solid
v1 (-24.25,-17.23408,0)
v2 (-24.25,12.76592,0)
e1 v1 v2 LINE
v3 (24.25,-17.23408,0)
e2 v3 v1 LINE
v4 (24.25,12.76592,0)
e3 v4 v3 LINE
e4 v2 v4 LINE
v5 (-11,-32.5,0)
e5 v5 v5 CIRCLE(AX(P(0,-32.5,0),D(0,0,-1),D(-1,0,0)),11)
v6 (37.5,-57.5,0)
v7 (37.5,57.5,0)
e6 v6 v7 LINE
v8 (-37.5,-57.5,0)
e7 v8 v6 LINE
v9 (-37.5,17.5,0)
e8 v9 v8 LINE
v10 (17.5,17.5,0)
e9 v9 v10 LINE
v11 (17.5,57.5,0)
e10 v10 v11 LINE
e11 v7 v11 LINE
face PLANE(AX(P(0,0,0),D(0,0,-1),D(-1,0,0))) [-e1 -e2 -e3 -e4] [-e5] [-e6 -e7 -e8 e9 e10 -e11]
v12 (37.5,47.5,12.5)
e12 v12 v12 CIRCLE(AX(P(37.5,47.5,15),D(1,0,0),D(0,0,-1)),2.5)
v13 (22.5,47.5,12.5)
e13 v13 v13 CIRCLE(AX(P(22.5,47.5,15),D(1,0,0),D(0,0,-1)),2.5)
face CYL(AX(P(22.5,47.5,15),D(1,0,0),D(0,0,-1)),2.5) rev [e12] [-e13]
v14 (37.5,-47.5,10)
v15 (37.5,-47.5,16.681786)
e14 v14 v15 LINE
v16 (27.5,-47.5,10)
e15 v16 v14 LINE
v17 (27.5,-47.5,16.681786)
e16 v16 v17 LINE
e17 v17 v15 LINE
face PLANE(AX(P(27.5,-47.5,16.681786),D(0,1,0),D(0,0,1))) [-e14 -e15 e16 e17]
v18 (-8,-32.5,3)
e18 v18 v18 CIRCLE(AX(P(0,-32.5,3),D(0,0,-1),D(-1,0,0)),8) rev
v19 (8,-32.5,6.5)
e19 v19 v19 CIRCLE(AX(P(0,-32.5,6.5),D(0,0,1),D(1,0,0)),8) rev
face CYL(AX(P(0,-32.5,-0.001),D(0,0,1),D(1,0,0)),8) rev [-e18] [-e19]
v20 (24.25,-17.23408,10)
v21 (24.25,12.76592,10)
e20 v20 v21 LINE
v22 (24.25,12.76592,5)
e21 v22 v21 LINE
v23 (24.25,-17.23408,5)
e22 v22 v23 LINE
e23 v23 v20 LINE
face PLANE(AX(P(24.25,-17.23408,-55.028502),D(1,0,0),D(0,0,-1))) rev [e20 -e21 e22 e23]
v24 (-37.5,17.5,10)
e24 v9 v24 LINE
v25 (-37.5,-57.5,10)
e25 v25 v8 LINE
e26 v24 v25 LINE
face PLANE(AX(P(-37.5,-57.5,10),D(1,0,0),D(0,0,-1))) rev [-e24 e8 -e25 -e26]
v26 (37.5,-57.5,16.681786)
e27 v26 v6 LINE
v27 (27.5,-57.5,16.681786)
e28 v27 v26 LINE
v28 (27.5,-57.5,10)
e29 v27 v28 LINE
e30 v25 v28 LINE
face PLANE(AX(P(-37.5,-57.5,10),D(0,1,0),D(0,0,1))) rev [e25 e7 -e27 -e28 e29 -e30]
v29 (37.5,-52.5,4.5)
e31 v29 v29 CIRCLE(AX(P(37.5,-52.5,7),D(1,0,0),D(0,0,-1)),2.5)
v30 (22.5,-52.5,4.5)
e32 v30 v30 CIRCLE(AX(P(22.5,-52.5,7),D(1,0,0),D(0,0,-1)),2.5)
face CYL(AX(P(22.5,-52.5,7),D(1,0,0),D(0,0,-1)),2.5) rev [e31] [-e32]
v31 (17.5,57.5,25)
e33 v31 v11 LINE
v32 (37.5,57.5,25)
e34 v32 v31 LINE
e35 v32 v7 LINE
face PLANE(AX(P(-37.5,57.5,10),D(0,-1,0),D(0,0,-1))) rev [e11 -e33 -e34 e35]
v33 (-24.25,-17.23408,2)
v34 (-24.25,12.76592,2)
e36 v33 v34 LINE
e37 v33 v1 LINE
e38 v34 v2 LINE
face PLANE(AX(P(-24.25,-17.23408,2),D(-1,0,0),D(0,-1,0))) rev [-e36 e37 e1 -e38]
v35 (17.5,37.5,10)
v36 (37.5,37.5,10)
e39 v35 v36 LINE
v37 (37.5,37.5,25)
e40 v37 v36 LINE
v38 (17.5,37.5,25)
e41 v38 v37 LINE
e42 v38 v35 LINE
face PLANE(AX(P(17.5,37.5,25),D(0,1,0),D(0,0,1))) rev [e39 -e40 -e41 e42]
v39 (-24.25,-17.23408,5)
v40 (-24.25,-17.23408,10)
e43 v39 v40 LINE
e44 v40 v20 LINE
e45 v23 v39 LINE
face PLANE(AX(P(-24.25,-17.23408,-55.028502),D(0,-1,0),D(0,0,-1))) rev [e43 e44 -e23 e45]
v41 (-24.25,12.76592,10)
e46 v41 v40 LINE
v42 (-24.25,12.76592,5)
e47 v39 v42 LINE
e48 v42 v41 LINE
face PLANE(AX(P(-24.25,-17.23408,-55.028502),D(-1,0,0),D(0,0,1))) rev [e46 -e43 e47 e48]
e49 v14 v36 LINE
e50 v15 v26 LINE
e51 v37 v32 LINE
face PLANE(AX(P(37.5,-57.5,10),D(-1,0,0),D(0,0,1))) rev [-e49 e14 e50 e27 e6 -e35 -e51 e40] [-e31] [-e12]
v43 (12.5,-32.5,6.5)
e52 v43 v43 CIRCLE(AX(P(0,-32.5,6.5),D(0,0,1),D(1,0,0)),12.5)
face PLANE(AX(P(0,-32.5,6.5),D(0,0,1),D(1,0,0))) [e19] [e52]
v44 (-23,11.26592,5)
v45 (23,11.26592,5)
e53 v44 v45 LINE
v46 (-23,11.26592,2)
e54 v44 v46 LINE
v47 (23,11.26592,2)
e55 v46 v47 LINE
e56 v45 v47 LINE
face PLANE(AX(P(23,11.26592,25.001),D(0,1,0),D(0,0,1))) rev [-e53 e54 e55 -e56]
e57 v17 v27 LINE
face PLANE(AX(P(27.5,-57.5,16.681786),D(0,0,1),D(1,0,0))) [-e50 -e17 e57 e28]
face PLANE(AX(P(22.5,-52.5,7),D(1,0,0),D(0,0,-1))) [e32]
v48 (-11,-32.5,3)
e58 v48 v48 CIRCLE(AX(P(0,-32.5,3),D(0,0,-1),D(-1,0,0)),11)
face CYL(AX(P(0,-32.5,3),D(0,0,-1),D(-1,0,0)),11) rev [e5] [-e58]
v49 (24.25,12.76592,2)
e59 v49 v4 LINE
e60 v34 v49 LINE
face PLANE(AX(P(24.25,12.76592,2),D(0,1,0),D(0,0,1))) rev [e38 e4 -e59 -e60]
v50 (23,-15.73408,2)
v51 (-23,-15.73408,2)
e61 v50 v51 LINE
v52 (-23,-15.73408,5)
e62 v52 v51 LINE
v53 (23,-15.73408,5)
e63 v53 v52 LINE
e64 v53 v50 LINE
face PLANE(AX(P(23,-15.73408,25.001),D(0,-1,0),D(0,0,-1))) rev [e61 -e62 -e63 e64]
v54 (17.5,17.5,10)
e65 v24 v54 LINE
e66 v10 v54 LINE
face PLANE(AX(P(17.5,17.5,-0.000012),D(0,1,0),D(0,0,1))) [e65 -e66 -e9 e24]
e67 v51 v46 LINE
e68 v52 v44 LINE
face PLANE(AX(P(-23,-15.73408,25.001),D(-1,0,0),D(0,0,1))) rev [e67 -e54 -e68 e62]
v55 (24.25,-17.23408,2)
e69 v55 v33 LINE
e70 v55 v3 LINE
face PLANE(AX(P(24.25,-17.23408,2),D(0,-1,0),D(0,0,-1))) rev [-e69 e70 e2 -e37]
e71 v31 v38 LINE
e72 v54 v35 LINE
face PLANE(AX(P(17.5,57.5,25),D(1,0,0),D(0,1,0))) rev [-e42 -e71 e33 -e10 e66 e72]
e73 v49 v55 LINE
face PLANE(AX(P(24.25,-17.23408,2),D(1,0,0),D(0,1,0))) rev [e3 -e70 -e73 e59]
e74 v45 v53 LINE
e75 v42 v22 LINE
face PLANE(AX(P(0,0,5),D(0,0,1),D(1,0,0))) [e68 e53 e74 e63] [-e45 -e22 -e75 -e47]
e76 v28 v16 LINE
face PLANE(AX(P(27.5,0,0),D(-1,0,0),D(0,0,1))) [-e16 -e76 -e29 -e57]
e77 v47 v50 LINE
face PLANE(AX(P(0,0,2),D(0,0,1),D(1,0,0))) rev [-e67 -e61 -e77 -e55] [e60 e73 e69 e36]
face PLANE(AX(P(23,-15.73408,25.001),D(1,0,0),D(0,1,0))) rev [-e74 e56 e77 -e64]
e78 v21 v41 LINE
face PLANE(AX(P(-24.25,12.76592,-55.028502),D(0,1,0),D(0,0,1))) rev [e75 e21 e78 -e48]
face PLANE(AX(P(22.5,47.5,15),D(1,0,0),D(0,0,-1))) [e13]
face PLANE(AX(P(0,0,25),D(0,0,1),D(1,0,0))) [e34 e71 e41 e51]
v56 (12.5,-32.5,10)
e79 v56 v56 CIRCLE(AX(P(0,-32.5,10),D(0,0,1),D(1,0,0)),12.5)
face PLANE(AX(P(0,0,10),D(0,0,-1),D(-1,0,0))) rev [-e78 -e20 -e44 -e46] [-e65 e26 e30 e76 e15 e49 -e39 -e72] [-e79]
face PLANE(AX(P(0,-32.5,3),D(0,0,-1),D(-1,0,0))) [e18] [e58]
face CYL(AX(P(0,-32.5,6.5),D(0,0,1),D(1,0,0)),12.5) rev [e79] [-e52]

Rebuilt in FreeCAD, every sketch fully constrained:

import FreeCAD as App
import Part
import Sketcher

V = App.Vector

doc = App.newDocument("Part")
body = doc.addObject("PartDesign::Body", "Body")

# Sketch on XY plane
sketch1 = body.newObject("Sketcher::SketchObject", "Sketch")
sketch1.AttachmentSupport = (doc.getObject("XY_Plane"), [""])
sketch1.MapMode = "FlatFace"
sketch1.addGeometry(Part.LineSegment(V(-37.5, 57.5, 0), V(-37.5, -57.5, 0)), False)
sketch1.addGeometry(Part.LineSegment(V(-37.5, -57.5, 0), V(37.5, -57.5, 0)), False)
sketch1.addGeometry(Part.LineSegment(V(37.5, -57.5, 0), V(37.5, 57.5, 0)), False)
sketch1.addGeometry(Part.LineSegment(V(37.5, 57.5, 0), V(-37.5, 57.5, 0)), False)
sketch1.addConstraint(Sketcher.Constraint("Coincident", 0, 2, 1, 1))
sketch1.addConstraint(Sketcher.Constraint("Coincident", 1, 2, 2, 1))
sketch1.addConstraint(Sketcher.Constraint("Coincident", 2, 2, 3, 1))
sketch1.addConstraint(Sketcher.Constraint("Coincident", 3, 2, 0, 1))
sketch1.addConstraint(Sketcher.Constraint("Vertical", 0))
sketch1.addConstraint(Sketcher.Constraint("Horizontal", 1))
sketch1.addConstraint(Sketcher.Constraint("Vertical", 2))
sketch1.addConstraint(Sketcher.Constraint("Horizontal", 3))
sketch1.addConstraint(Sketcher.Constraint("Symmetric", 0, 2, 2, 2, -1, 1))
sketch1.addConstraint(Sketcher.Constraint("DistanceX", 1, 1, 1, 2, 75.0))
sketch1.addConstraint(Sketcher.Constraint("DistanceY", 0, 2, 0, 1, 115.0))
pad1 = body.newObject("PartDesign::Pad", "Pad")
pad1.Profile = sketch1
pad1.Length = 10

# Sketch on XY plane
sketch2 = body.newObject("Sketcher::SketchObject", "Sketch001")
sketch2.AttachmentSupport = (doc.getObject("XY_Plane"), [""])
sketch2.MapMode = "FlatFace"
sketch2.AttachmentOffset = App.Placement(V(0, 0, 10), App.Rotation())
sketch2.addGeometry(Part.Circle(V(0, -32.5, 0), V(0, 0, 1), 8), False)
sketch2.addConstraint(Sketcher.Constraint("PointOnObject", 0, 3, -2))
sketch2.addConstraint(Sketcher.Constraint("Diameter", 0, 16.0))
sketch2.addConstraint(Sketcher.Constraint("DistanceY", 0, 3, -1, 1, 32.5))
pocket1 = body.newObject("PartDesign::Pocket", "Pocket")
pocket1.Profile = sketch2
pocket1.Type = "UpToFirst"

# Sketch on XY plane
sketch3 = body.newObject("Sketcher::SketchObject", "Sketch002")
sketch3.AttachmentSupport = (doc.getObject("XY_Plane"), [""])
sketch3.MapMode = "FlatFace"
sketch3.AttachmentOffset = App.Placement(V(0, 0, 10), App.Rotation())
sketch3.addGeometry(Part.Circle(V(0, -32.5, 0), V(0, 0, 1), 12.5), False)
sketch3.addConstraint(Sketcher.Constraint("PointOnObject", 0, 3, -2))
sketch3.addConstraint(Sketcher.Constraint("Diameter", 0, 25.0))
sketch3.addConstraint(Sketcher.Constraint("DistanceY", 0, 3, -1, 1, 32.5))
pocket2 = body.newObject("PartDesign::Pocket", "Pocket001")
pocket2.Profile = sketch3
pocket2.Length = 3.5

# Sketch on XY plane
sketch4 = body.newObject("Sketcher::SketchObject", "Sketch003")
sketch4.AttachmentSupport = (doc.getObject("XY_Plane"), [""])
sketch4.MapMode = "FlatFace"
sketch4.addGeometry(Part.Circle(V(0, -32.5, 0), V(0, 0, 1), 11), False)
sketch4.addConstraint(Sketcher.Constraint("PointOnObject", 0, 3, -2))
sketch4.addConstraint(Sketcher.Constraint("Diameter", 0, 22.0))
sketch4.addConstraint(Sketcher.Constraint("DistanceY", 0, 3, -1, 1, 32.5))
pocket3 = body.newObject("PartDesign::Pocket", "Pocket002")
pocket3.Profile = sketch4
pocket3.Length = 3
pocket3.Reversed = True

# Sketch on XY plane
sketch5 = body.newObject("Sketcher::SketchObject", "Sketch004")
sketch5.AttachmentSupport = (doc.getObject("XY_Plane"), [""])
sketch5.MapMode = "FlatFace"
sketch5.AttachmentOffset = App.Placement(V(0, 0, 10), App.Rotation())
sketch5.addGeometry(Part.LineSegment(V(17.5, 57.5, 0), V(17.5, 37.5, 0)), False)
sketch5.addGeometry(Part.LineSegment(V(17.5, 37.5, 0), V(37.5, 37.5, 0)), False)
sketch5.addGeometry(Part.LineSegment(V(37.5, 37.5, 0), V(37.5, 57.5, 0)), False)
sketch5.addGeometry(Part.LineSegment(V(37.5, 57.5, 0), V(17.5, 57.5, 0)), False)
sketch5.addConstraint(Sketcher.Constraint("Coincident", 0, 2, 1, 1))
sketch5.addConstraint(Sketcher.Constraint("Coincident", 1, 2, 2, 1))
sketch5.addConstraint(Sketcher.Constraint("Coincident", 2, 2, 3, 1))
sketch5.addConstraint(Sketcher.Constraint("Coincident", 3, 2, 0, 1))
sketch5.addConstraint(Sketcher.Constraint("Vertical", 0))
sketch5.addConstraint(Sketcher.Constraint("Horizontal", 1))
sketch5.addConstraint(Sketcher.Constraint("Vertical", 2))
sketch5.addConstraint(Sketcher.Constraint("Horizontal", 3))
sketch5.addConstraint(Sketcher.Constraint("Equal", 3, 0))
sketch5.addConstraint(Sketcher.Constraint("DistanceX", 1, 1, 1, 2, 20.0))
sketch5.addConstraint(Sketcher.Constraint("DistanceX", -1, 1, 0, 2, 17.5))
sketch5.addConstraint(Sketcher.Constraint("DistanceY", -1, 1, 0, 2, 37.5))
pad2 = body.newObject("PartDesign::Pad", "Pad001")
pad2.Profile = sketch5
pad2.Length = 15

# Sketch on YZ plane
sketch6 = body.newObject("Sketcher::SketchObject", "Sketch005")
sketch6.AttachmentSupport = (doc.getObject("YZ_Plane"), [""])
sketch6.MapMode = "FlatFace"
sketch6.AttachmentOffset = App.Placement(V(0, 0, 37.5), App.Rotation())
sketch6.addGeometry(Part.LineSegment(V(-47.5, 16.681786, 0), V(-57.5, 16.681786, 0)), False)
sketch6.addGeometry(Part.LineSegment(V(-57.5, 16.681786, 0), V(-57.5, 10, 0)), False)
sketch6.addGeometry(Part.LineSegment(V(-57.5, 10, 0), V(-47.5, 10, 0)), False)
sketch6.addGeometry(Part.LineSegment(V(-47.5, 10, 0), V(-47.5, 16.681786, 0)), False)
sketch6.addConstraint(Sketcher.Constraint("Coincident", 0, 2, 1, 1))
sketch6.addConstraint(Sketcher.Constraint("Coincident", 1, 2, 2, 1))
sketch6.addConstraint(Sketcher.Constraint("Coincident", 2, 2, 3, 1))
sketch6.addConstraint(Sketcher.Constraint("Coincident", 3, 2, 0, 1))
sketch6.addConstraint(Sketcher.Constraint("Horizontal", 0))
sketch6.addConstraint(Sketcher.Constraint("Vertical", 1))
sketch6.addConstraint(Sketcher.Constraint("Horizontal", 2))
sketch6.addConstraint(Sketcher.Constraint("Vertical", 3))
sketch6.addConstraint(Sketcher.Constraint("DistanceX", 0, 2, 0, 1, 10.0))
sketch6.addConstraint(Sketcher.Constraint("DistanceY", -1, 1, 1, 2, 10.0))
sketch6.addConstraint(Sketcher.Constraint("DistanceX", 0, 2, -1, 1, 57.5))
sketch6.addConstraint(Sketcher.Constraint("DistanceY", 1, 2, 1, 1, 6.681786))
pad3 = body.newObject("PartDesign::Pad", "Pad002")
pad3.Profile = sketch6
pad3.Length = 10
pad3.Reversed = True

# Sketch on XY plane
sketch7 = body.newObject("Sketcher::SketchObject", "Sketch006")
sketch7.AttachmentSupport = (doc.getObject("XY_Plane"), [""])
sketch7.MapMode = "FlatFace"
sketch7.addGeometry(Part.LineSegment(V(17.5, 57.5, 0), V(17.5, 17.5, 0)), False)
sketch7.addGeometry(Part.LineSegment(V(17.5, 17.5, 0), V(-37.5, 17.5, 0)), False)
sketch7.addGeometry(Part.LineSegment(V(-37.5, 17.5, 0), V(-37.5, 57.5, 0)), False)
sketch7.addGeometry(Part.LineSegment(V(-37.5, 57.5, 0), V(17.5, 57.5, 0)), False)
sketch7.addConstraint(Sketcher.Constraint("Coincident", 0, 2, 1, 1))
sketch7.addConstraint(Sketcher.Constraint("Coincident", 1, 2, 2, 1))
sketch7.addConstraint(Sketcher.Constraint("Coincident", 2, 2, 3, 1))
sketch7.addConstraint(Sketcher.Constraint("Coincident", 3, 2, 0, 1))
sketch7.addConstraint(Sketcher.Constraint("Vertical", 0))
sketch7.addConstraint(Sketcher.Constraint("Horizontal", 1))
sketch7.addConstraint(Sketcher.Constraint("Vertical", 2))
sketch7.addConstraint(Sketcher.Constraint("Horizontal", 3))
sketch7.addConstraint(Sketcher.Constraint("DistanceX", 1, 2, 1, 1, 55.0))
sketch7.addConstraint(Sketcher.Constraint("DistanceY", 0, 2, 0, 1, 40.0))
sketch7.addConstraint(Sketcher.Constraint("DistanceX", -1, 1, 0, 2, 17.5))
sketch7.addConstraint(Sketcher.Constraint("DistanceY", -1, 1, 0, 2, 17.5))
pocket4 = body.newObject("PartDesign::Pocket", "Pocket003")
pocket4.Profile = sketch7
pocket4.Type = "UpToFirst"
pocket4.Reversed = True

# Sketch on XY plane
sketch8 = body.newObject("Sketcher::SketchObject", "Sketch007")
sketch8.AttachmentSupport = (doc.getObject("XY_Plane"), [""])
sketch8.MapMode = "FlatFace"
sketch8.addGeometry(Part.LineSegment(V(17.5, 57.5, 0), V(17.5, 17.5, 0)), False)
sketch8.addGeometry(Part.LineSegment(V(17.5, 17.5, 0), V(-37.5, 17.5, 0)), False)
sketch8.addGeometry(Part.LineSegment(V(-37.5, 17.5, 0), V(-37.5, 57.5, 0)), False)
sketch8.addGeometry(Part.LineSegment(V(-37.5, 57.5, 0), V(17.5, 57.5, 0)), False)
sketch8.addConstraint(Sketcher.Constraint("Coincident", 0, 2, 1, 1))
sketch8.addConstraint(Sketcher.Constraint("Coincident", 1, 2, 2, 1))
sketch8.addConstraint(Sketcher.Constraint("Coincident", 2, 2, 3, 1))
sketch8.addConstraint(Sketcher.Constraint("Coincident", 3, 2, 0, 1))
sketch8.addConstraint(Sketcher.Constraint("Vertical", 0))
sketch8.addConstraint(Sketcher.Constraint("Horizontal", 1))
sketch8.addConstraint(Sketcher.Constraint("Vertical", 2))
sketch8.addConstraint(Sketcher.Constraint("Horizontal", 3))
sketch8.addConstraint(Sketcher.Constraint("DistanceX", 1, 2, 1, 1, 55.0))
sketch8.addConstraint(Sketcher.Constraint("DistanceY", 0, 2, 0, 1, 40.0))
sketch8.addConstraint(Sketcher.Constraint("DistanceX", -1, 1, 0, 2, 17.5))
sketch8.addConstraint(Sketcher.Constraint("DistanceY", -1, 1, 0, 2, 17.5))
pocket5 = body.newObject("PartDesign::Pocket", "Pocket004")
pocket5.Profile = sketch8
pocket5.Length = 74.058196

# Sketch on XY plane
sketch9 = body.newObject("Sketcher::SketchObject", "Sketch008")
sketch9.AttachmentSupport = (doc.getObject("XY_Plane"), [""])
sketch9.MapMode = "FlatFace"
sketch9.addGeometry(Part.LineSegment(V(23, 11.26592, 0), V(23, -15.73408, 0)), False)
sketch9.addGeometry(Part.LineSegment(V(23, -15.73408, 0), V(-23, -15.73408, 0)), False)
sketch9.addGeometry(Part.LineSegment(V(-23, -15.73408, 0), V(-23, 11.26592, 0)), False)
sketch9.addGeometry(Part.LineSegment(V(-23, 11.26592, 0), V(23, 11.26592, 0)), False)
sketch9.addConstraint(Sketcher.Constraint("Coincident", 0, 2, 1, 1))
sketch9.addConstraint(Sketcher.Constraint("Coincident", 1, 2, 2, 1))
sketch9.addConstraint(Sketcher.Constraint("Coincident", 2, 2, 3, 1))
sketch9.addConstraint(Sketcher.Constraint("Coincident", 3, 2, 0, 1))
sketch9.addConstraint(Sketcher.Constraint("Vertical", 0))
sketch9.addConstraint(Sketcher.Constraint("Horizontal", 1))
sketch9.addConstraint(Sketcher.Constraint("Vertical", 2))
sketch9.addConstraint(Sketcher.Constraint("Horizontal", 3))
sketch9.addConstraint(Sketcher.Constraint("DistanceX", 1, 2, 1, 1, 46.0))
sketch9.addConstraint(Sketcher.Constraint("DistanceY", 0, 2, 0, 1, 27.0))
sketch9.addConstraint(Sketcher.Constraint("DistanceX", -1, 1, 0, 2, 23.0))
sketch9.addConstraint(Sketcher.Constraint("DistanceY", 0, 2, -1, 1, 15.73408))
pocket6 = body.newObject("PartDesign::Pocket", "Pocket005")
pocket6.Profile = sketch9
pocket6.Type = "UpToFirst"
pocket6.Reversed = True

# Sketch on XY plane
sketch10 = body.newObject("Sketcher::SketchObject", "Sketch009")
sketch10.AttachmentSupport = (doc.getObject("XY_Plane"), [""])
sketch10.MapMode = "FlatFace"
sketch10.addGeometry(Part.LineSegment(V(24.25, 12.76592, 0), V(24.25, -17.23408, 0)), False)
sketch10.addGeometry(Part.LineSegment(V(24.25, -17.23408, 0), V(-24.25, -17.23408, 0)), False)
sketch10.addGeometry(Part.LineSegment(V(-24.25, -17.23408, 0), V(-24.25, 12.76592, 0)), False)
sketch10.addGeometry(Part.LineSegment(V(-24.25, 12.76592, 0), V(24.25, 12.76592, 0)), False)
sketch10.addConstraint(Sketcher.Constraint("Coincident", 0, 2, 1, 1))
sketch10.addConstraint(Sketcher.Constraint("Coincident", 1, 2, 2, 1))
sketch10.addConstraint(Sketcher.Constraint("Coincident", 2, 2, 3, 1))
sketch10.addConstraint(Sketcher.Constraint("Coincident", 3, 2, 0, 1))
sketch10.addConstraint(Sketcher.Constraint("Vertical", 0))
sketch10.addConstraint(Sketcher.Constraint("Horizontal", 1))
sketch10.addConstraint(Sketcher.Constraint("Vertical", 2))
sketch10.addConstraint(Sketcher.Constraint("Horizontal", 3))
sketch10.addConstraint(Sketcher.Constraint("DistanceY", 0, 2, 0, 1, 30.0))
sketch10.addConstraint(Sketcher.Constraint("DistanceX", 1, 2, 1, 1, 48.5))
sketch10.addConstraint(Sketcher.Constraint("DistanceX", -1, 1, 0, 2, 24.25))
sketch10.addConstraint(Sketcher.Constraint("DistanceY", 0, 2, -1, 1, 17.23408))
pocket7 = body.newObject("PartDesign::Pocket", "Pocket006")
pocket7.Profile = sketch10
pocket7.Length = 2
pocket7.Reversed = True

# Sketch on XY plane
sketch11 = body.newObject("Sketcher::SketchObject", "Sketch010")
sketch11.AttachmentSupport = (doc.getObject("XY_Plane"), [""])
sketch11.MapMode = "FlatFace"
sketch11.AttachmentOffset = App.Placement(V(0, 0, 10), App.Rotation())
sketch11.addGeometry(Part.LineSegment(V(-24.25, 12.76592, 0), V(-24.25, -17.23408, 0)), False)
sketch11.addGeometry(Part.LineSegment(V(-24.25, -17.23408, 0), V(24.25, -17.23408, 0)), False)
sketch11.addGeometry(Part.LineSegment(V(24.25, -17.23408, 0), V(24.25, 12.76592, 0)), False)
sketch11.addGeometry(Part.LineSegment(V(24.25, 12.76592, 0), V(-24.25, 12.76592, 0)), False)
sketch11.addConstraint(Sketcher.Constraint("Coincident", 0, 2, 1, 1))
sketch11.addConstraint(Sketcher.Constraint("Coincident", 1, 2, 2, 1))
sketch11.addConstraint(Sketcher.Constraint("Coincident", 2, 2, 3, 1))
sketch11.addConstraint(Sketcher.Constraint("Coincident", 3, 2, 0, 1))
sketch11.addConstraint(Sketcher.Constraint("Vertical", 0))
sketch11.addConstraint(Sketcher.Constraint("Horizontal", 1))
sketch11.addConstraint(Sketcher.Constraint("Vertical", 2))
sketch11.addConstraint(Sketcher.Constraint("Horizontal", 3))
sketch11.addConstraint(Sketcher.Constraint("DistanceY", 0, 2, 0, 1, 30.0))
sketch11.addConstraint(Sketcher.Constraint("DistanceX", 1, 1, 1, 2, 48.5))
sketch11.addConstraint(Sketcher.Constraint("DistanceX", 0, 2, -1, 1, 24.25))
sketch11.addConstraint(Sketcher.Constraint("DistanceY", 0, 2, -1, 1, 17.23408))
pocket8 = body.newObject("PartDesign::Pocket", "Pocket007")
pocket8.Profile = sketch11
pocket8.Length = 5

# Sketch on YZ plane
sketch12 = body.newObject("Sketcher::SketchObject", "Sketch011")
sketch12.AttachmentSupport = (doc.getObject("YZ_Plane"), [""])
sketch12.MapMode = "FlatFace"
sketch12.AttachmentOffset = App.Placement(V(0, 0, 37.5), App.Rotation())
sketch12.addGeometry(Part.Circle(V(47.5, 15, 0), V(0, 0, 1), 2.5), False)
sketch12.addGeometry(Part.Circle(V(-52.5, 7, 0), V(0, 0, 1), 2.5), False)
sketch12.addConstraint(Sketcher.Constraint("Equal", 0, 1))
sketch12.addConstraint(Sketcher.Constraint("Diameter", 0, 5.0))
sketch12.addConstraint(Sketcher.Constraint("DistanceY", -1, 1, 0, 3, 15.0))
sketch12.addConstraint(Sketcher.Constraint("DistanceY", -1, 1, 1, 3, 7.0))
sketch12.addConstraint(Sketcher.Constraint("DistanceX", 1, 3, 0, 3, 100.0))
sketch12.addConstraint(Sketcher.Constraint("DistanceX", -1, 1, 0, 3, 47.5))
pocket9 = body.newObject("PartDesign::Pocket", "Pocket008")
pocket9.Profile = sketch12
pocket9.Length = 15

doc.recompute()
